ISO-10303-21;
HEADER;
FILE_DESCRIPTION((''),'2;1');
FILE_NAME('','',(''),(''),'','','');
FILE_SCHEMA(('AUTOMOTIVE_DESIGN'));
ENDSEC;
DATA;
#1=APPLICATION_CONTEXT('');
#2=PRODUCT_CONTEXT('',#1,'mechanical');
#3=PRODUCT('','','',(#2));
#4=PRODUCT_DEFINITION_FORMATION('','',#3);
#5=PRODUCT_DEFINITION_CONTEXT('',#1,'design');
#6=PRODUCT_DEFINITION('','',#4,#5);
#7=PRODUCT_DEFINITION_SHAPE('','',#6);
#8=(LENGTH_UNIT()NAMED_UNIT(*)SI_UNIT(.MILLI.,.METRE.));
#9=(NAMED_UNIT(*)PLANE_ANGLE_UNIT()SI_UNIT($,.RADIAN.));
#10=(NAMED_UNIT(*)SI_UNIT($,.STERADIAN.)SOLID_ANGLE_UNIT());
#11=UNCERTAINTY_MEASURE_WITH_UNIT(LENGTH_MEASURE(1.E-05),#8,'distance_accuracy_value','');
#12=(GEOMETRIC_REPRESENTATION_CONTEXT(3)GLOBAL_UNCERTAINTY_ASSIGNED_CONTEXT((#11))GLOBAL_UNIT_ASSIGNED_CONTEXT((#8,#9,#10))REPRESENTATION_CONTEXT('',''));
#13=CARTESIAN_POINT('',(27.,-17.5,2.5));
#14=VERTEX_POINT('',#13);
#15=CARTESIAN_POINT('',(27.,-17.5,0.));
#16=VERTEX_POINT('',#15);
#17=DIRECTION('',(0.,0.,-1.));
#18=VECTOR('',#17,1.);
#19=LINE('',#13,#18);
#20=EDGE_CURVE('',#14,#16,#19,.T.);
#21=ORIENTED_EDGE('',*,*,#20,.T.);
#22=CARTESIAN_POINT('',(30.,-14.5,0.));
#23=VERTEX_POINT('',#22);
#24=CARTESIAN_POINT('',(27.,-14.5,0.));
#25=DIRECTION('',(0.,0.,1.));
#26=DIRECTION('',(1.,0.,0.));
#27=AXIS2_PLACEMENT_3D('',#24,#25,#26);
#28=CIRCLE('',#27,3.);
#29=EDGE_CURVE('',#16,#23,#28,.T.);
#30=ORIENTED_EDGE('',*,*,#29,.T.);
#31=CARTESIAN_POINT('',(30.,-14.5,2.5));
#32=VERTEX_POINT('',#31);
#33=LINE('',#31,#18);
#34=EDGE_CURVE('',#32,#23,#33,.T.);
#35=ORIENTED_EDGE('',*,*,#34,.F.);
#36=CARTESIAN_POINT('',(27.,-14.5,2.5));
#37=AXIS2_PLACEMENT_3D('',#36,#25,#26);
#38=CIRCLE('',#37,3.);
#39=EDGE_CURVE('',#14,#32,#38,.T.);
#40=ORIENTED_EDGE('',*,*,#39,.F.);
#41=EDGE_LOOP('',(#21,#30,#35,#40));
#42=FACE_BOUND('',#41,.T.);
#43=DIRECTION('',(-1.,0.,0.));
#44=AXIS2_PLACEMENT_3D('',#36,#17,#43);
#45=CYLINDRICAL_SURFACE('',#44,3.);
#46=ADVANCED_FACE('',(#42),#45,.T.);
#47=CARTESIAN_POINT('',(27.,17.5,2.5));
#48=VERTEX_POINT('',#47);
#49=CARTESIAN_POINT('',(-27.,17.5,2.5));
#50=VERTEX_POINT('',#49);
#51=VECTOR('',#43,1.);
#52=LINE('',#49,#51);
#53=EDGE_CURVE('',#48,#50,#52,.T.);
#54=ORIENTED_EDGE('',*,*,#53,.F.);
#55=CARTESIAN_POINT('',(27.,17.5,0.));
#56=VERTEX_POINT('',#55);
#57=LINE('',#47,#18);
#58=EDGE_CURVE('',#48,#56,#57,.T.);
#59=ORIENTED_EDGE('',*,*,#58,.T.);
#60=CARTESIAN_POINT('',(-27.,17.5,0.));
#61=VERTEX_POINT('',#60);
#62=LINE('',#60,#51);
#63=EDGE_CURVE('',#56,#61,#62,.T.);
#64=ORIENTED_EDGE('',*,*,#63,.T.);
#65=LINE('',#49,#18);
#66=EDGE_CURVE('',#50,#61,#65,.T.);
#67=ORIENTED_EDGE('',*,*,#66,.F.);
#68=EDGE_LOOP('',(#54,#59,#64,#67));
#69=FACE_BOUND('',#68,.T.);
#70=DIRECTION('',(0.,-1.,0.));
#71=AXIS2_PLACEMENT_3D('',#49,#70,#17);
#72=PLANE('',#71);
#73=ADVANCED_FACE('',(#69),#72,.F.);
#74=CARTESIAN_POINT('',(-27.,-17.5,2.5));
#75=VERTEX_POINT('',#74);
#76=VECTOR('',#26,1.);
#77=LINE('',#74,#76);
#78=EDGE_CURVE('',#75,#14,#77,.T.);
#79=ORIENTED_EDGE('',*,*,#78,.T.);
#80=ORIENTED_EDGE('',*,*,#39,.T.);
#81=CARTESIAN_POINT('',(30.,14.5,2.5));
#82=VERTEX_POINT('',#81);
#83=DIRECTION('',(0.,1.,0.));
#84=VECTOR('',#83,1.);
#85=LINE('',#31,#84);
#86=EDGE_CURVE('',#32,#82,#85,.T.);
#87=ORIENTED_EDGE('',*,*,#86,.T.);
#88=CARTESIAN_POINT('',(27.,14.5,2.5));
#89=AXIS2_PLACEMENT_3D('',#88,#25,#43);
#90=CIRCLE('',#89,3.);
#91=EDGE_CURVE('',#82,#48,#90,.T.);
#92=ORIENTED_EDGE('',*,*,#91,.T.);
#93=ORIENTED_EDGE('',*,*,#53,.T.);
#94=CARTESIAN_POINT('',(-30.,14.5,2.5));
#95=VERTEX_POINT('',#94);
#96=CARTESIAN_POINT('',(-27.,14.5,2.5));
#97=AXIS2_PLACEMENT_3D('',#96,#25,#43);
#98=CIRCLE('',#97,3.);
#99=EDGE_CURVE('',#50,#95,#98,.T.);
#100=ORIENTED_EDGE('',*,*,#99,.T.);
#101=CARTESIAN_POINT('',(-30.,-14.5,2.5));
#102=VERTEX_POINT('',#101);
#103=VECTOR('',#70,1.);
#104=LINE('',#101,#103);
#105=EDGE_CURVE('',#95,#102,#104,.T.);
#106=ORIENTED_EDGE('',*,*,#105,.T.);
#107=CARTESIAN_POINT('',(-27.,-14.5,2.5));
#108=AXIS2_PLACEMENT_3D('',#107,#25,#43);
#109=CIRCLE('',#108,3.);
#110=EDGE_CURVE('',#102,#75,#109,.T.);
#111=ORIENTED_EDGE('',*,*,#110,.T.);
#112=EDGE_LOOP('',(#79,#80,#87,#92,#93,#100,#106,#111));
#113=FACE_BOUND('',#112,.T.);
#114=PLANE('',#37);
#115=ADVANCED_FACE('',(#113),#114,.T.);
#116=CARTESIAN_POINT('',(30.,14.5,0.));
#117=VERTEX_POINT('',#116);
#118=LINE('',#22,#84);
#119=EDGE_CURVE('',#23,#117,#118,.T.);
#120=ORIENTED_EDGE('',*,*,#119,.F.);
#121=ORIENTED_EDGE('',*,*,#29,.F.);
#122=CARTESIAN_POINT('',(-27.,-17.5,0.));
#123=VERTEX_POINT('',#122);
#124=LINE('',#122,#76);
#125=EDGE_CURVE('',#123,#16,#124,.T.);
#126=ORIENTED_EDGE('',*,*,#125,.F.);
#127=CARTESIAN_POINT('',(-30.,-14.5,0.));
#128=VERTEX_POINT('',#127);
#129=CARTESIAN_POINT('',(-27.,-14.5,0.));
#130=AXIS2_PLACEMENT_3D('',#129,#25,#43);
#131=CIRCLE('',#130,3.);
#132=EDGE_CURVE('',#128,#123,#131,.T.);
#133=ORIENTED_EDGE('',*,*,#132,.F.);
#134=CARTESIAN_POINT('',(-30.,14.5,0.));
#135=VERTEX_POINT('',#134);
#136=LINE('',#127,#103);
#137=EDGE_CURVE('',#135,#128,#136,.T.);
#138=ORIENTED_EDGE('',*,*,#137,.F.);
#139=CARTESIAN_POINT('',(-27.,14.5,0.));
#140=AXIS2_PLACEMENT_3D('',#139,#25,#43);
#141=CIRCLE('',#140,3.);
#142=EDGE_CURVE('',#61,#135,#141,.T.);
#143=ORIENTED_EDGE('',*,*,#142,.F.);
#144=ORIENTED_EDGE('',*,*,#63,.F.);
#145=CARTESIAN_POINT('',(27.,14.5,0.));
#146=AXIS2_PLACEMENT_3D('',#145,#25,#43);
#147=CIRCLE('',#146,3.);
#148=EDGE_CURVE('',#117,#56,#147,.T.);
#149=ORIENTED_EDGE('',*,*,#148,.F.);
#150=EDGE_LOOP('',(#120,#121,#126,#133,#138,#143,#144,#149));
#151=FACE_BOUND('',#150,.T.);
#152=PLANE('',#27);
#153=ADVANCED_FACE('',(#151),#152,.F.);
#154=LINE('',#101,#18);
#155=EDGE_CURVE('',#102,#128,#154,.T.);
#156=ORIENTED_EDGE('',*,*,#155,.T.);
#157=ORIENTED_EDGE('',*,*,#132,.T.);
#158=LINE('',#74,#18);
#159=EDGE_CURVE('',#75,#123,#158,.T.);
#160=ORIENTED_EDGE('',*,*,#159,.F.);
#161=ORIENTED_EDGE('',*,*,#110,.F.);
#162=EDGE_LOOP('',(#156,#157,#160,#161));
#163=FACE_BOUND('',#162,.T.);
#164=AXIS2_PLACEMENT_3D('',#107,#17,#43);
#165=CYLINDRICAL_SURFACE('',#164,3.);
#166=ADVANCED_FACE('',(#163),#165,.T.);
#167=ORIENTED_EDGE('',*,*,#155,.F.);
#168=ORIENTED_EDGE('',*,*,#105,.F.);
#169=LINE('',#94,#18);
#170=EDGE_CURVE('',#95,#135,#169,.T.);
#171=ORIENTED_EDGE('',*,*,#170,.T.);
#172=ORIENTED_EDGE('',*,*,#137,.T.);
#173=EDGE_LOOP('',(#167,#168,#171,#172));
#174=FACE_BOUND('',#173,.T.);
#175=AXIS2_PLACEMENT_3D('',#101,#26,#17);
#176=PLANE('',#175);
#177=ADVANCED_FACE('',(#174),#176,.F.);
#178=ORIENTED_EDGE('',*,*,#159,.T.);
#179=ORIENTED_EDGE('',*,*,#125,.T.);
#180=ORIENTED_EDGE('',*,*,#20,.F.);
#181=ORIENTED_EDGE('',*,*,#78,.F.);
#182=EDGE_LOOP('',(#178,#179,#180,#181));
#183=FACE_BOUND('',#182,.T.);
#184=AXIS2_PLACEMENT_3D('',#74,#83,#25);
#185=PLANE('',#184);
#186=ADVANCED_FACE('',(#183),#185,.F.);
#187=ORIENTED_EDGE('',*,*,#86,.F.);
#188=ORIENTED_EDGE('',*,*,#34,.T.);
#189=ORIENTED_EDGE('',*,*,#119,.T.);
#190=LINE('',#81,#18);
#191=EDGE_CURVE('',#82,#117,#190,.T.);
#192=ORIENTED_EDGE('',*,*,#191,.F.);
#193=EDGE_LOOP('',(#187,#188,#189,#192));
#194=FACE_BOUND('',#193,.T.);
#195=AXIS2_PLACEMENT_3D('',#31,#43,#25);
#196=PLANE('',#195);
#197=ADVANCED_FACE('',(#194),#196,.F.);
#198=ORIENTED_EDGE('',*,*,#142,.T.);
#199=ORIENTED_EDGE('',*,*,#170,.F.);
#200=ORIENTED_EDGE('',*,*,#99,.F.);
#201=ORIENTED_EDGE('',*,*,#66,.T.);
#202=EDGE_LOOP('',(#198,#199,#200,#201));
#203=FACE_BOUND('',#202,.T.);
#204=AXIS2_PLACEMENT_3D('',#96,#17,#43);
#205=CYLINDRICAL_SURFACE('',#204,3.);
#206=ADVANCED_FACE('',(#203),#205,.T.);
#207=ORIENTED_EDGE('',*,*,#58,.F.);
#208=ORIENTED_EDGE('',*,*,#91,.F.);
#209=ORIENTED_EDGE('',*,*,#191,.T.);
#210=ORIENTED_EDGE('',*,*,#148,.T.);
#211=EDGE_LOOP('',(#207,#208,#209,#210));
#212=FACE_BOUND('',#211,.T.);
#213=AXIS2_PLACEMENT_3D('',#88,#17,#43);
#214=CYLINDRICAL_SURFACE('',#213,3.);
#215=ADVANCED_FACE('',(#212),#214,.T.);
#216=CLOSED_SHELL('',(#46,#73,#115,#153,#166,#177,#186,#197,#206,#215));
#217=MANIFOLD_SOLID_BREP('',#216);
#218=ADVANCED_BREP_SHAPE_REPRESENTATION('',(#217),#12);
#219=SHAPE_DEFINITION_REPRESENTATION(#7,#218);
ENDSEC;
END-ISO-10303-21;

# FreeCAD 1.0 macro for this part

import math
import FreeCAD as App
import Part
import Sketcher
from FreeCAD import Vector
Q = App.Units.Quantity

doc = App.newDocument("Part")
params = doc.addObject("Spreadsheet::Sheet", "Params")
for row, (alias, value) in enumerate([
    ("sketch1_radius", "3 mm"),
    ("sketch1_width", "54 mm"),
    ("sketch1_height", "29 mm"),
    ("pad1_length", "2.5 mm"),
], start=1):
    params.set(f"A{row}", alias)
    params.set(f"B{row}", "=" + value)
    params.setAlias(f"B{row}", alias)

body = doc.addObject("PartDesign::Body", "Body")

sketch1 = doc.addObject("Sketcher::SketchObject", "Sketch")
body.addObject(sketch1)
sketch1.AttachmentSupport = (doc.XY_Plane, [""])
sketch1.MapMode = "FlatFace"
sketch1.addGeometry([
    Part.LineSegment(Vector(-27, -17.5, 0), Vector(27, -17.5, 0)),
    Part.ArcOfCircle(Part.Circle(Vector(27, -14.5, 0), Vector(0, 0, 1), 3), math.radians(-90), math.radians(0)),
    Part.LineSegment(Vector(30, -14.5, 0), Vector(30, 14.5, 0)),
    Part.ArcOfCircle(Part.Circle(Vector(27, 14.5, 0), Vector(0, 0, 1), 3), math.radians(0), math.radians(90)),
    Part.LineSegment(Vector(27, 17.5, 0), Vector(-27, 17.5, 0)),
    Part.ArcOfCircle(Part.Circle(Vector(-27, 14.5, 0), Vector(0, 0, 1), 3), math.radians(90), math.radians(180)),
    Part.LineSegment(Vector(-30, 14.5, 0), Vector(-30, -14.5, 0)),
    Part.ArcOfCircle(Part.Circle(Vector(-27, -14.5, 0), Vector(0, 0, 1), 3), math.radians(180), math.radians(270)),
], False)
sketch1.addConstraint([
    Sketcher.Constraint("Tangent", 0, 2, 1, 1),
    Sketcher.Constraint("Tangent", 1, 2, 2, 1),
    Sketcher.Constraint("Tangent", 2, 2, 3, 1),
    Sketcher.Constraint("Tangent", 3, 2, 4, 1),
    Sketcher.Constraint("Tangent", 4, 2, 5, 1),
    Sketcher.Constraint("Tangent", 5, 2, 6, 1),
    Sketcher.Constraint("Tangent", 6, 2, 7, 1),
    Sketcher.Constraint("Tangent", 7, 2, 0, 1),
    Sketcher.Constraint("Horizontal", 0),
    Sketcher.Constraint("Vertical", 2),
    Sketcher.Constraint("Horizontal", 4),
    Sketcher.Constraint("Vertical", 6),
    Sketcher.Constraint("Equal", 1, 3),
    Sketcher.Constraint("Equal", 3, 5),
    Sketcher.Constraint("Equal", 5, 7),
    Sketcher.Constraint("Symmetric", 1, 3, 5, 3, -1, 1),
    Sketcher.Constraint("Radius", 1, Q("3 mm")),
    Sketcher.Constraint("DistanceX", 0, 1, 0, 2, Q("54 mm")),
    Sketcher.Constraint("DistanceY", 2, 1, 2, 2, Q("29 mm")),
])
sketch1.setExpression("Constraints[16]", "Params.sketch1_radius")
sketch1.setExpression("Constraints[17]", "Params.sketch1_width")
sketch1.setExpression("Constraints[18]", "Params.sketch1_height")
pad1 = doc.addObject("PartDesign::Pad", "Pad")
body.addObject(pad1)
pad1.Profile = sketch1
pad1.setExpression("Length", "Params.pad1_length")

doc.recompute()
